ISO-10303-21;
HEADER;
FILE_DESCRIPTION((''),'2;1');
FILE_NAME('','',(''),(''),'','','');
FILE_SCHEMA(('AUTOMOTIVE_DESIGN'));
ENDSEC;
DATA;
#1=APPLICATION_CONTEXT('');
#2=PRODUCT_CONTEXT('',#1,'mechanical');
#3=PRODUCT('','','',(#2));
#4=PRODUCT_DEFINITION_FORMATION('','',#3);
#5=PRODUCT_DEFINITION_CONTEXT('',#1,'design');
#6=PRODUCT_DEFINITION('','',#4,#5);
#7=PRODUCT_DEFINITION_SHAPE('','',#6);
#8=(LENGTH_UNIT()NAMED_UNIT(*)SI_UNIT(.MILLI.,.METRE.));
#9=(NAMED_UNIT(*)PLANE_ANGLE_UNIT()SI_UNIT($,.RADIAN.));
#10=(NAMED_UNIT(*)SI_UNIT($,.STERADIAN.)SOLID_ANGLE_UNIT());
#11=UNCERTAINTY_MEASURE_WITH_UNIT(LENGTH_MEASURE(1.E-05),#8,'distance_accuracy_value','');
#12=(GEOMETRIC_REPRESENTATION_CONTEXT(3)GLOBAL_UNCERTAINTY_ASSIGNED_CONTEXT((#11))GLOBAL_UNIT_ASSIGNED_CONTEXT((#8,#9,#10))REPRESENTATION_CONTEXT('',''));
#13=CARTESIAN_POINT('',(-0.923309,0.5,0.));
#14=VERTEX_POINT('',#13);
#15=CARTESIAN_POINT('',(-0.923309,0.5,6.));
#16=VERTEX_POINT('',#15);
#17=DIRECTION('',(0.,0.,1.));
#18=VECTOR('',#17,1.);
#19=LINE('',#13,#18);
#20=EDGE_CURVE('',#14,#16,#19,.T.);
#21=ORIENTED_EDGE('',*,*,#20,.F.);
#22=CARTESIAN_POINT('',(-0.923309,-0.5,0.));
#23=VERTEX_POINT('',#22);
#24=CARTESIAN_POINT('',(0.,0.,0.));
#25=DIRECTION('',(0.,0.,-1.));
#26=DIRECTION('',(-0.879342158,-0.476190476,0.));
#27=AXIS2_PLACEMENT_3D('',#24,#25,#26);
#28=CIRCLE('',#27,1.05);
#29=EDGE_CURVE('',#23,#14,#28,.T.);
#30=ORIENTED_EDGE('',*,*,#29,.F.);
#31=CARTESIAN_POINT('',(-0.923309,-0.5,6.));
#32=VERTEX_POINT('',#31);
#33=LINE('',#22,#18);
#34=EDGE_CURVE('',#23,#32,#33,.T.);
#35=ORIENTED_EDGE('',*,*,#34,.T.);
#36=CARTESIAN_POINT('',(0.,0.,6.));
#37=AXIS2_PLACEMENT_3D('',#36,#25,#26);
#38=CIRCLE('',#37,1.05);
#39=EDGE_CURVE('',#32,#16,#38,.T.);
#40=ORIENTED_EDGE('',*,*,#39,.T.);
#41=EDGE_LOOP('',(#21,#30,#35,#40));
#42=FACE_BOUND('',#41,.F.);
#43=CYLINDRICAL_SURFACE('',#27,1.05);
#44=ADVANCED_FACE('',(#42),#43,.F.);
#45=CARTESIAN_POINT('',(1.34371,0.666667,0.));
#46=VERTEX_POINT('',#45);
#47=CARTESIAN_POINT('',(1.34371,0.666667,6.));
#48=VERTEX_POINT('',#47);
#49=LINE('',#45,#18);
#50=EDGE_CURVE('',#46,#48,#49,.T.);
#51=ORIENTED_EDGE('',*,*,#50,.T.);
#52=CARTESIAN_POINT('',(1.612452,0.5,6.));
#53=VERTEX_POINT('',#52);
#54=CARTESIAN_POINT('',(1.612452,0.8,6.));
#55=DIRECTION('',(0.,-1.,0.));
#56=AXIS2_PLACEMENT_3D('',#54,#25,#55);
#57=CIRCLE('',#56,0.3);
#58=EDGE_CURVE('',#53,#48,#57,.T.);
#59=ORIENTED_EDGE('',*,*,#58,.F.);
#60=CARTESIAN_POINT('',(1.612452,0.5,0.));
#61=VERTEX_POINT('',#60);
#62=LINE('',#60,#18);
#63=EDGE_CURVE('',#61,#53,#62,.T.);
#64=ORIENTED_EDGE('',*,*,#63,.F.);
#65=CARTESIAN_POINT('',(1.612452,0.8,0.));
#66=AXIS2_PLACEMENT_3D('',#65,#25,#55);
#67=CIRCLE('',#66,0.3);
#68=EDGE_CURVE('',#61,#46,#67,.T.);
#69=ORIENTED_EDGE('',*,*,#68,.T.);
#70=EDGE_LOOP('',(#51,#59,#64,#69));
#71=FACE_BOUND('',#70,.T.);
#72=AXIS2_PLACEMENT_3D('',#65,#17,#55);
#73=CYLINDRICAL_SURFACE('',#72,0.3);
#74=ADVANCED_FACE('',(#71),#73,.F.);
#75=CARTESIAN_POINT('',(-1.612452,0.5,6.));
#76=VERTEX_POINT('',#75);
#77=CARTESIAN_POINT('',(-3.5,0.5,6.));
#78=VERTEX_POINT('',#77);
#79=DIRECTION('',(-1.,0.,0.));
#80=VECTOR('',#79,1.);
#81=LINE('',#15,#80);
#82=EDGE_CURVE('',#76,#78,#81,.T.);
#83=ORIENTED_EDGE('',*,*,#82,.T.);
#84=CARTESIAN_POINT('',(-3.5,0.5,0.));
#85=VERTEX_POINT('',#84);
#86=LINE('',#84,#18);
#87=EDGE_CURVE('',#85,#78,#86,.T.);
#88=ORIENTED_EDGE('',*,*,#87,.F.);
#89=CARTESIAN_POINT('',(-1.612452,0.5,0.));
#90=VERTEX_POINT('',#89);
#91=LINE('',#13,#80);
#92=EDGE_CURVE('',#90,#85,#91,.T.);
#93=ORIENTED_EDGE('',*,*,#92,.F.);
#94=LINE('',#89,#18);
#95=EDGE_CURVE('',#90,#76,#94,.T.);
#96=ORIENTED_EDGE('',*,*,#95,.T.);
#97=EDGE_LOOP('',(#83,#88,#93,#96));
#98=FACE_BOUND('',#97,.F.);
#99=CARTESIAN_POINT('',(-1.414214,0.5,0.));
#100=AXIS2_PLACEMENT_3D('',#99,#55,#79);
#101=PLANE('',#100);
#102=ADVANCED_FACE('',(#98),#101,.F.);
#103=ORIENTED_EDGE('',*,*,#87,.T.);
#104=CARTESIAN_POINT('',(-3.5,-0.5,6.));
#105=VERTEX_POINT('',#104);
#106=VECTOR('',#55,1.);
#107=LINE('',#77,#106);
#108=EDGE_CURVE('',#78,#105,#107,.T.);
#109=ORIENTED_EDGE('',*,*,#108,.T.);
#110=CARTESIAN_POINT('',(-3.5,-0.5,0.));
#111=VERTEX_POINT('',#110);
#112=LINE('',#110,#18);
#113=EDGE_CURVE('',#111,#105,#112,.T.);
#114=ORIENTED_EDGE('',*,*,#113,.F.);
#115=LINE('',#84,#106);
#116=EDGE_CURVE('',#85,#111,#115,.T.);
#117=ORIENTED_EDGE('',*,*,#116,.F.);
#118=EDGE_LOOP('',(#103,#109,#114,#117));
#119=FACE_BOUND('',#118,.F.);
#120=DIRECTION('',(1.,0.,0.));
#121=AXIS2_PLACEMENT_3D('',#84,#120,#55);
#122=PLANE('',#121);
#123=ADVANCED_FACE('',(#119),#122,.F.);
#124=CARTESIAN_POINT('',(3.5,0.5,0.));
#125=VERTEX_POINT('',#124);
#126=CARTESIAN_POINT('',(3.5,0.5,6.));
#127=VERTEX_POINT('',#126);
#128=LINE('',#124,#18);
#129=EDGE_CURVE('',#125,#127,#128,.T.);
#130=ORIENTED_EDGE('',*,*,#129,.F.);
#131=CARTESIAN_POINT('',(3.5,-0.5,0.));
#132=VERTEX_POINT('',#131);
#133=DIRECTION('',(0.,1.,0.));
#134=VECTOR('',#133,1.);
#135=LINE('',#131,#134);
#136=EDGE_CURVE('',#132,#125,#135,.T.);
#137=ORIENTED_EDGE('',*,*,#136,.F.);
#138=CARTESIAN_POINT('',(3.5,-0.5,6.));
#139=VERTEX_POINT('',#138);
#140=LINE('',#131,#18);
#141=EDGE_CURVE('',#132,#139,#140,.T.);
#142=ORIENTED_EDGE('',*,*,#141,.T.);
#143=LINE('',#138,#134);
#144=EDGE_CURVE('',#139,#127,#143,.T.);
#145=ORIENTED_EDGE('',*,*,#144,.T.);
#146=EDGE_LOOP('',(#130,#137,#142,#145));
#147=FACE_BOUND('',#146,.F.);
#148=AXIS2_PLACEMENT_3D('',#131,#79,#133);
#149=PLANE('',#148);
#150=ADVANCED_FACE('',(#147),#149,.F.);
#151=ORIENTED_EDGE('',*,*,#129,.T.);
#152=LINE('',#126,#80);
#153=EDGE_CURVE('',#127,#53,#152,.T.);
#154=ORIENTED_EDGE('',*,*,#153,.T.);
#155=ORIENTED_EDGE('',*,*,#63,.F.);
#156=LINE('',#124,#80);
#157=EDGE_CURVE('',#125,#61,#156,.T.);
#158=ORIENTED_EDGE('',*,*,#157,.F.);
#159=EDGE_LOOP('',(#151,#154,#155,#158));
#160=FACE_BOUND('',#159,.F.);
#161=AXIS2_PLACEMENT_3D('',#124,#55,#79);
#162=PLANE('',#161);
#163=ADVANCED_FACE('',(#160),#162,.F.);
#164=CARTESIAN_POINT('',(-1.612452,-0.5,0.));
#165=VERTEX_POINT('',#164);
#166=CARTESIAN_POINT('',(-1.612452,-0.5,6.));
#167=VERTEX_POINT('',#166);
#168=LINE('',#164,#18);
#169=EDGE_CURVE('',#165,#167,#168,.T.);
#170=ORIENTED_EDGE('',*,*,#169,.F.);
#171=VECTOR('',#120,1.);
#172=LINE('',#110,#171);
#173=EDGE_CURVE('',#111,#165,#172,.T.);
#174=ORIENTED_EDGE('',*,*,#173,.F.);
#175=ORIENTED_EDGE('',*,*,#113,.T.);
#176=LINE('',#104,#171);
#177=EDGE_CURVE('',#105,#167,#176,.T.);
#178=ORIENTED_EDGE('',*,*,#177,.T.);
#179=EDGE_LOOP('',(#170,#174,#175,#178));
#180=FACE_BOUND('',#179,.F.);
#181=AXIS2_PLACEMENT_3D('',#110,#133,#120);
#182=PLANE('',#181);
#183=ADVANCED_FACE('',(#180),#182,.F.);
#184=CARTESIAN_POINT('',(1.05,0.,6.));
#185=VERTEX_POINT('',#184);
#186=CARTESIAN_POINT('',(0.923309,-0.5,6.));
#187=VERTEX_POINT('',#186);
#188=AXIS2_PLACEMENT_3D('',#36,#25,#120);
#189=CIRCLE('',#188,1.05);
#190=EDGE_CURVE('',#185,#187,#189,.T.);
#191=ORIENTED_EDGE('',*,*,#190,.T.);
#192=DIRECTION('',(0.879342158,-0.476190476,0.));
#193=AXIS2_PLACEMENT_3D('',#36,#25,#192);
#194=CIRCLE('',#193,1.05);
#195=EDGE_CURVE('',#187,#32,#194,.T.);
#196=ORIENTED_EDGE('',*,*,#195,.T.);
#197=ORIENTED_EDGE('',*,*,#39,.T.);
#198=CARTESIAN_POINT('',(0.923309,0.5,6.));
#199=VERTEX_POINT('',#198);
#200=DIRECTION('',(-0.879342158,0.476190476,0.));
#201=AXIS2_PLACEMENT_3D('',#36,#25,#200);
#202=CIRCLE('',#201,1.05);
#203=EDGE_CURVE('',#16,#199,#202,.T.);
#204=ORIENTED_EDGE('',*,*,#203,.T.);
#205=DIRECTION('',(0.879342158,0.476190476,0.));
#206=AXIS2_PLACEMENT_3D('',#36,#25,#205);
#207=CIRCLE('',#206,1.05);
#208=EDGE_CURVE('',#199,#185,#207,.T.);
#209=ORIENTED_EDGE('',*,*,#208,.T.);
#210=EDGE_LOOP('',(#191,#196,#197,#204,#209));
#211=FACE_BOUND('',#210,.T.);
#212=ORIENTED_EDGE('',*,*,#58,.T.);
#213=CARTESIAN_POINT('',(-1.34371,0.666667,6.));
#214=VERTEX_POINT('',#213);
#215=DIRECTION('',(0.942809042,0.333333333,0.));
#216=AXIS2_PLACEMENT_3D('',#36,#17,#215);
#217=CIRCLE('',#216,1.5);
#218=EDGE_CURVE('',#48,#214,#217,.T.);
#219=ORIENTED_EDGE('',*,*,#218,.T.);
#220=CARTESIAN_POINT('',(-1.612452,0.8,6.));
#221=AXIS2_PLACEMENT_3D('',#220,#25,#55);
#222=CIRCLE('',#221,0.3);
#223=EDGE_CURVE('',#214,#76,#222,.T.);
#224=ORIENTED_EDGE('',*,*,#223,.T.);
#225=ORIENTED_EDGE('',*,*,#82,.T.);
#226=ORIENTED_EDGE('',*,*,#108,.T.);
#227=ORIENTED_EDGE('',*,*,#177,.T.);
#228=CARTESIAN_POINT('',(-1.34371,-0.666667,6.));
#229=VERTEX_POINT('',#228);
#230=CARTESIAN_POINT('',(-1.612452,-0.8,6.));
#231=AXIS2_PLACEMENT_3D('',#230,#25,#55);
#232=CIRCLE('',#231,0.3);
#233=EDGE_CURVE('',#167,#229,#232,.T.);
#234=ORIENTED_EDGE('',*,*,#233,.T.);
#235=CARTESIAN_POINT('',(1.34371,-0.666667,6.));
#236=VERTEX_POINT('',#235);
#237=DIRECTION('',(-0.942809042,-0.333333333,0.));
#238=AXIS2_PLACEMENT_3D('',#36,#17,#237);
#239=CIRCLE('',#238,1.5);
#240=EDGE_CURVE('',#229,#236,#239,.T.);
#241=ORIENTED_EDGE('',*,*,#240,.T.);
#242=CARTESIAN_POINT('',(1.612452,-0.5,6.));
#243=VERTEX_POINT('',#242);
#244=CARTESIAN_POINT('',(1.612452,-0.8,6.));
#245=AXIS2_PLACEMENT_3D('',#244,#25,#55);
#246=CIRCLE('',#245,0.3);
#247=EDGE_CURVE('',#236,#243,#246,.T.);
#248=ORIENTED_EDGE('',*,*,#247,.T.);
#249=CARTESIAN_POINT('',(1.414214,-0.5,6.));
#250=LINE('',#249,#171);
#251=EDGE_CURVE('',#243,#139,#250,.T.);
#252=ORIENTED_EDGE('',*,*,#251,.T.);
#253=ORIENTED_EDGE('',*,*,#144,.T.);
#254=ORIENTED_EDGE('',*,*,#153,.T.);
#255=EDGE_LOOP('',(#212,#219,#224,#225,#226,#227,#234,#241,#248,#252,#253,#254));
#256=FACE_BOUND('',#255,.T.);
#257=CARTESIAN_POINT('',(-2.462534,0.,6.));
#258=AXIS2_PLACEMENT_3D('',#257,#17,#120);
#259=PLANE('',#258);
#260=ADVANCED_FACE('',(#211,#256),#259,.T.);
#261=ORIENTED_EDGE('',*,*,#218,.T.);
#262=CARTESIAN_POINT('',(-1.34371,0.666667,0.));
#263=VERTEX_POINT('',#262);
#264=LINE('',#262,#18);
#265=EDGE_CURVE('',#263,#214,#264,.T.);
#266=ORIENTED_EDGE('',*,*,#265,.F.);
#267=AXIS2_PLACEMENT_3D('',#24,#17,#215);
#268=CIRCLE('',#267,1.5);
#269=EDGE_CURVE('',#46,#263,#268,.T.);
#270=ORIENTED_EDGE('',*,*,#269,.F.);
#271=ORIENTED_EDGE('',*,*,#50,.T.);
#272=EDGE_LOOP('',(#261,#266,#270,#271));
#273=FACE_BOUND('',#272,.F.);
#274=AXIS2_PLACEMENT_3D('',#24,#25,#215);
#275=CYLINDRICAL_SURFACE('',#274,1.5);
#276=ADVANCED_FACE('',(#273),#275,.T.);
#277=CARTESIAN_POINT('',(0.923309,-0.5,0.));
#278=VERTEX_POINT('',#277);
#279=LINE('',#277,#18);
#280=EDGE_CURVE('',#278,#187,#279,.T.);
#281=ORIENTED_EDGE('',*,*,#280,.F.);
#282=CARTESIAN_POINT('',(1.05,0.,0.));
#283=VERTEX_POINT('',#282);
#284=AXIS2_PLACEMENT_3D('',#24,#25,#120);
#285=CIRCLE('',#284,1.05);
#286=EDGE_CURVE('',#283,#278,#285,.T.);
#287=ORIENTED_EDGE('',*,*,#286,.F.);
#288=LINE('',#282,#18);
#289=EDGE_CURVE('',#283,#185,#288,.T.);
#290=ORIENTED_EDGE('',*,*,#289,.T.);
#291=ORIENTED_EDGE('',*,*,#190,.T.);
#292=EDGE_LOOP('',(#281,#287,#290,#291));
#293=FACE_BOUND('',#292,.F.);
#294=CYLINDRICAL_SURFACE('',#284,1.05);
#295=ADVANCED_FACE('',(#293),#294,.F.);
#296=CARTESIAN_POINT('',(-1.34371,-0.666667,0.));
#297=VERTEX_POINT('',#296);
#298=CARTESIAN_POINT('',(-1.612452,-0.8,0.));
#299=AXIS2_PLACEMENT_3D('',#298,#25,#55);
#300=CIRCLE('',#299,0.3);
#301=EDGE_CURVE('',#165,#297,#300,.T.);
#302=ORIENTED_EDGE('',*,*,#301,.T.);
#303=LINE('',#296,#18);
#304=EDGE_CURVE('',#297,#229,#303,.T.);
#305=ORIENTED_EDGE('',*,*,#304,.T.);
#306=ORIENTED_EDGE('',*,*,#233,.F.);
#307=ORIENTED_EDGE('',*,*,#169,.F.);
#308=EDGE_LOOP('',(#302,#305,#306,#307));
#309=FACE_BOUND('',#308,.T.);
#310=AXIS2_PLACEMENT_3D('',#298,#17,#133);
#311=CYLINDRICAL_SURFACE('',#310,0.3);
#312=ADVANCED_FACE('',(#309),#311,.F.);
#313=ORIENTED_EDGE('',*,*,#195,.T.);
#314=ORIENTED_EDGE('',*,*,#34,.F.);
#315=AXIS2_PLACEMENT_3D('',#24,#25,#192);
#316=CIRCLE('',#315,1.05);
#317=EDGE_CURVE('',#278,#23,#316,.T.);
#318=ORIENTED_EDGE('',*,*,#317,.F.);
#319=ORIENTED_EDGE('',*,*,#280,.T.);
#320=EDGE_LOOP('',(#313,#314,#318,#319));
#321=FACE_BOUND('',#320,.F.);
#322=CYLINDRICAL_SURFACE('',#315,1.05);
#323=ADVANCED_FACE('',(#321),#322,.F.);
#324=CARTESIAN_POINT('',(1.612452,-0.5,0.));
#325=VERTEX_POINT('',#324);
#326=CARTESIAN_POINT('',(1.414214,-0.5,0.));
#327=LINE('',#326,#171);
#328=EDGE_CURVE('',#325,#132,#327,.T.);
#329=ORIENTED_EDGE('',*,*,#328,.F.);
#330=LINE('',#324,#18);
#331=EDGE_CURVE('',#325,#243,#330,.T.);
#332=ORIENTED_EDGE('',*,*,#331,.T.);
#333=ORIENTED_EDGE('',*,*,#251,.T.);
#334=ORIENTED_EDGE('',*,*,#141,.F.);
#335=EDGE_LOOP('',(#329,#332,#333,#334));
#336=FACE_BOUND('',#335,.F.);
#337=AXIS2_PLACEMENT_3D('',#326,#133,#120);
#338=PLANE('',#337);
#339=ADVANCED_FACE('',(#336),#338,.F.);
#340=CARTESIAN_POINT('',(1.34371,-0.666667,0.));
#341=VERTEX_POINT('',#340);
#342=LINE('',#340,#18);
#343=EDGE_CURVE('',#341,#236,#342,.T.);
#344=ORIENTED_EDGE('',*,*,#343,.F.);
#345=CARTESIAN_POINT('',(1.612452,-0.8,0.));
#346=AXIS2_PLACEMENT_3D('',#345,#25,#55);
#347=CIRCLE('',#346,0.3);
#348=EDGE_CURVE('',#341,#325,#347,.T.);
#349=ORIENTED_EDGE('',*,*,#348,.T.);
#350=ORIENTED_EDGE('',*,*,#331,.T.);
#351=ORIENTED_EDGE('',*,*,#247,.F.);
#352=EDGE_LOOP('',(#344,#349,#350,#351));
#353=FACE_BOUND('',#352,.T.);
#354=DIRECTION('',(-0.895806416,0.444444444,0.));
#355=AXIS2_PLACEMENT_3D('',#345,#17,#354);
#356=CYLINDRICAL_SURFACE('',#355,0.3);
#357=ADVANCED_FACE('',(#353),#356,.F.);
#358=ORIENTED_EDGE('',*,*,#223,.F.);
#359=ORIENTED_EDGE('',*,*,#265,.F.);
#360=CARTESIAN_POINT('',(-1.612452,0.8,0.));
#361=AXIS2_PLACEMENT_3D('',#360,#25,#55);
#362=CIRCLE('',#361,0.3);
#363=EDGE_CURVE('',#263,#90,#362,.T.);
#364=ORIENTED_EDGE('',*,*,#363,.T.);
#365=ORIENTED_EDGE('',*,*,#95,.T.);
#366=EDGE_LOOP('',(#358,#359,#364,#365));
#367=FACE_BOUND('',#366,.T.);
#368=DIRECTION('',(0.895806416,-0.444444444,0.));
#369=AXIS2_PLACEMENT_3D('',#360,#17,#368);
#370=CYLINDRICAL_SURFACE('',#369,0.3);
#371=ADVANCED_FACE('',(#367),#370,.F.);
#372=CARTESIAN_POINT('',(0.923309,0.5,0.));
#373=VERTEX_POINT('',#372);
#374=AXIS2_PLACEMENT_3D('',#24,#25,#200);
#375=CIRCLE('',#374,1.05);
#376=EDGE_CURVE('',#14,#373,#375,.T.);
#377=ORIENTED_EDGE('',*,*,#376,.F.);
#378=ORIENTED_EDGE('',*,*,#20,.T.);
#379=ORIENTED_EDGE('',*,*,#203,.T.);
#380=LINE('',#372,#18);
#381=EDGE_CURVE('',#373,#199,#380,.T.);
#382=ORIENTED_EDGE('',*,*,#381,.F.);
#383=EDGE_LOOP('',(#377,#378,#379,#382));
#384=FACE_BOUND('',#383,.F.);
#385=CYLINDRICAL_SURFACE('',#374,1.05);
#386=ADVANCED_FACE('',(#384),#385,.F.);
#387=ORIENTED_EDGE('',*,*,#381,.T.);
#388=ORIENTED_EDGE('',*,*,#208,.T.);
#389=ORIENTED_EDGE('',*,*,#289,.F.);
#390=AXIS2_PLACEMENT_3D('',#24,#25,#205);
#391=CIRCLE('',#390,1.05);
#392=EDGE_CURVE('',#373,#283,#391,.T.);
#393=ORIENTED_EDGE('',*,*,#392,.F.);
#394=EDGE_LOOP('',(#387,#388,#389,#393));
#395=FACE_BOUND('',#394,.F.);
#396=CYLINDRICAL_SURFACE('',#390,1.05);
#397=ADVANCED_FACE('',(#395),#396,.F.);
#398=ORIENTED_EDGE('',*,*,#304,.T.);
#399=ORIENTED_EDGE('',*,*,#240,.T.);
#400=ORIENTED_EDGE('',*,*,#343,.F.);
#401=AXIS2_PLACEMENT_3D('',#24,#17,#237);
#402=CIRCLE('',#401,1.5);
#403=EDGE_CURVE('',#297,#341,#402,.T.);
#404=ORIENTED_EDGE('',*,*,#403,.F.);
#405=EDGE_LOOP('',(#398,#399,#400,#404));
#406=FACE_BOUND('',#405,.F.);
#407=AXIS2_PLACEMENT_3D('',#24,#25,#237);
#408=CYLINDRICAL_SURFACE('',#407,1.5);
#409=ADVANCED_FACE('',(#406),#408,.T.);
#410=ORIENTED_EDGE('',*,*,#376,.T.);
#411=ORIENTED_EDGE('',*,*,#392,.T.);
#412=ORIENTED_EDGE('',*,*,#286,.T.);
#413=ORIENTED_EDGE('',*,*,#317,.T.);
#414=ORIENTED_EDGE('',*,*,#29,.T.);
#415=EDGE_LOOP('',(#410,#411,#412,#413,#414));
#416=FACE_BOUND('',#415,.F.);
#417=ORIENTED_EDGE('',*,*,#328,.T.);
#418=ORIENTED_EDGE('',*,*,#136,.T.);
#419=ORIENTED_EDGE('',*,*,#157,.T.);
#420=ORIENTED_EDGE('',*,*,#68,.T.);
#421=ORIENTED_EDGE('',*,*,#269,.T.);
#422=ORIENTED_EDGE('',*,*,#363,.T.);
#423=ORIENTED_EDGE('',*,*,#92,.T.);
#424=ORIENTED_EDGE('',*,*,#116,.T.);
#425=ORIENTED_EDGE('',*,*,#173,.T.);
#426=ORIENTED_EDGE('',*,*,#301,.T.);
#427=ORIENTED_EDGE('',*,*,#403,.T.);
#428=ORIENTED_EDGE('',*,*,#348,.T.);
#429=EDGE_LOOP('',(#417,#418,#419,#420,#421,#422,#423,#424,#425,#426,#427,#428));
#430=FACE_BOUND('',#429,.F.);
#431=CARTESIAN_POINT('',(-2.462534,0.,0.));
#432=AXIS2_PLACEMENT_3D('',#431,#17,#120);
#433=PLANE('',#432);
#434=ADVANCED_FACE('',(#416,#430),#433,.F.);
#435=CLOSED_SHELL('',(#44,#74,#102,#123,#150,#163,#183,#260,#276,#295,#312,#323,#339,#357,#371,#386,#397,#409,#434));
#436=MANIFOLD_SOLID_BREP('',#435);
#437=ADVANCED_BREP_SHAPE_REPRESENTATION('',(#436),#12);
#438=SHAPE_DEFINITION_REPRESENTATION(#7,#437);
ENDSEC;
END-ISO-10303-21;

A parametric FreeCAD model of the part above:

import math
import FreeCAD as App
import Part
import Sketcher
Q = App.Units.Quantity


def edges_at(feature, points):
    """Names of the edges that pass closest to the given points."""
    edges = feature.Shape.Edges
    near = lambda p: min(range(len(edges)), key=lambda i: edges[i].distToShape(Part.Vertex(*p))[0])
    return sorted({f"Edge{near(p) + 1}" for p in points})

doc = App.newDocument("Part")
body = doc.addObject("PartDesign::Body", "Body")

# Sketch on XY plane
sketch1 = doc.addObject("Sketcher::SketchObject", "Sketch")
body.addObject(sketch1)
sketch1.AttachmentSupport = (doc.XY_Plane, [""])
sketch1.MapMode = "FlatFace"
sketch1.addGeometry([
    Part.LineSegment(App.Vector(-3.5, 0.5, 0), App.Vector(-3.5, -0.5, 0)),  # 0
    Part.LineSegment(App.Vector(-3.5, -0.5, 0), App.Vector(-1.4, -0.5, 0)),  # 1
    Part.ArcOfCircle(Part.Circle(App.Vector(0, 0, 0), App.Vector(0, 0, 1), 1.5), math.radians(-161), math.radians(-19)),  # 2
    Part.LineSegment(App.Vector(1.4, -0.5, 0), App.Vector(3.5, -0.5, 0)),  # 3
    Part.LineSegment(App.Vector(3.5, -0.5, 0), App.Vector(3.5, 0.5, 0)),  # 4
    Part.LineSegment(App.Vector(3.5, 0.5, 0), App.Vector(1.4, 0.5, 0)),  # 5
    Part.ArcOfCircle(Part.Circle(App.Vector(0, 0, 0), App.Vector(0, 0, 1), 1.5), math.radians(19), math.radians(161)),  # 6
    Part.LineSegment(App.Vector(-1.4, 0.5, 0), App.Vector(-3.5, 0.5, 0)),  # 7
    Part.ArcOfCircle(Part.Circle(App.Vector(0, 0, 0), App.Vector(0, 0, 1), 1.1), math.radians(-152), math.radians(-28)),  # 8
    Part.ArcOfCircle(Part.Circle(App.Vector(0, 0, 0), App.Vector(0, 0, 1), 1.1), math.radians(152), math.radians(208)),  # 9
    Part.ArcOfCircle(Part.Circle(App.Vector(0, 0, 0), App.Vector(0, 0, 1), 1.1), math.radians(28), math.radians(152)),  # 10
    Part.ArcOfCircle(Part.Circle(App.Vector(0, 0, 0), App.Vector(0, 0, 1), 1.1), math.radians(0), math.radians(28)),  # 11
    Part.ArcOfCircle(Part.Circle(App.Vector(0, 0, 0), App.Vector(0, 0, 1), 1.1), math.radians(-28), math.radians(0)),  # 12
], False)
sketch1.addConstraint([
    Sketcher.Constraint("Coincident", 0, 2, 1, 1),
    Sketcher.Constraint("Coincident", 1, 2, 2, 1),
    Sketcher.Constraint("Coincident", 2, 2, 3, 1),
    Sketcher.Constraint("Coincident", 3, 2, 4, 1),
    Sketcher.Constraint("Coincident", 4, 2, 5, 1),
    Sketcher.Constraint("Coincident", 5, 2, 6, 1),
    Sketcher.Constraint("Coincident", 6, 2, 7, 1),
    Sketcher.Constraint("Coincident", 7, 2, 0, 1),
    Sketcher.Constraint("Tangent", 8, 1, 9, 2),
    Sketcher.Constraint("Tangent", 9, 1, 10, 2),
    Sketcher.Constraint("Tangent", 10, 1, 11, 2),
    Sketcher.Constraint("Tangent", 11, 1, 12, 2),
    Sketcher.Constraint("Tangent", 12, 1, 8, 2),
    Sketcher.Constraint("Vertical", 0),
    Sketcher.Constraint("Horizontal", 1),
    Sketcher.Constraint("Horizontal", 3),
    Sketcher.Constraint("Vertical", 4),
    Sketcher.Constraint("Horizontal", 5),
    Sketcher.Constraint("Horizontal", 7),
    Sketcher.Constraint("Coincident", 2, 3, -1, 1),
    Sketcher.Constraint("Coincident", 6, 3, -1, 1),
    Sketcher.Constraint("Coincident", 8, 3, -1, 1),
    Sketcher.Constraint("Coincident", 10, 3, -1, 1),
    Sketcher.Constraint("Equal", 2, 6),
    Sketcher.Constraint("Symmetric", 0, 2, 4, 2, -1, 1),
    Sketcher.Constraint("PointOnObject", 11, 1, -1),
    Sketcher.Constraint("Horizontal", 1, 2, 2, 2),
    Sketcher.Constraint("Horizontal", 5, 2, 6, 2),
    Sketcher.Constraint("Horizontal", 3, 2, 8, 1),
    Sketcher.Constraint("Horizontal", 7, 2, 9, 1),
    Sketcher.Constraint("Horizontal", 9, 1, 10, 1),
    Sketcher.Constraint("Horizontal", 8, 1, 12, 1),
    Sketcher.Constraint("Radius", 2, Q("1.5 mm")),
    Sketcher.Constraint("DistanceY", 0, 2, 0, 1, Q("1 mm")),
    Sketcher.Constraint("Radius", 8, Q("1.05 mm")),
    Sketcher.Constraint("DistanceX", 0, 2, -1, 1, Q("3.5 mm")),
])
pad1 = doc.addObject("PartDesign::Pad", "Pad")
body.addObject(pad1)
pad1.Profile = sketch1
pad1.Length = 6
doc.recompute()

fillet = doc.addObject("PartDesign::Fillet", "Fillet")
body.addObject(fillet)
fillet.Base = (pad1, edges_at(pad1, [
    (1.414, -0.5, 3),
    (-1.414, -0.5, 3),
    (1.414, 0.5, 3),
    (-1.414, 0.5, 3),
]))
fillet.Radius = 0.3

doc.recompute()
